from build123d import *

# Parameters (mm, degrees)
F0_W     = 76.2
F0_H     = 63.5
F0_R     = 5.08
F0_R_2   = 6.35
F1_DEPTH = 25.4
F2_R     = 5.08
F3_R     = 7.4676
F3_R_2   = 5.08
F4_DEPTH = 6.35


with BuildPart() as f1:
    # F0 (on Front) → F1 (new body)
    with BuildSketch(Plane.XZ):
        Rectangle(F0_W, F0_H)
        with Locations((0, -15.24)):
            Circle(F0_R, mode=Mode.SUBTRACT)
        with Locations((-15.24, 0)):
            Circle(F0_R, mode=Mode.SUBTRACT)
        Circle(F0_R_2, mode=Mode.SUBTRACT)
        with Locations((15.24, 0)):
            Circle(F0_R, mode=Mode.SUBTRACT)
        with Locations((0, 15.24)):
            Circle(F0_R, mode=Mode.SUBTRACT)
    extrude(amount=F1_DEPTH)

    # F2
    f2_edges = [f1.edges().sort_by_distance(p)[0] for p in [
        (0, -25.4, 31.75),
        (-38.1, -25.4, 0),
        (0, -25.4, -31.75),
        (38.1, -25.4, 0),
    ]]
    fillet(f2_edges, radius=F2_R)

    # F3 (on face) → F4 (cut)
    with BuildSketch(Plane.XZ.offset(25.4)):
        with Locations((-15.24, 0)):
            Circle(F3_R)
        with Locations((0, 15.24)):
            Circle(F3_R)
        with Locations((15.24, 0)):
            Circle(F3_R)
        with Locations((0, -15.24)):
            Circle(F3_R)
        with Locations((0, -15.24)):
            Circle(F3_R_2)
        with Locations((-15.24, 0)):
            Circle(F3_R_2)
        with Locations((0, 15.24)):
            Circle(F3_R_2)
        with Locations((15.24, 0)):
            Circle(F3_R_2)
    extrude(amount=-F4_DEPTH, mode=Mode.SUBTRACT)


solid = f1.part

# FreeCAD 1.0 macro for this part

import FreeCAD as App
import Part
import Sketcher
from FreeCAD import Vector
Q = App.Units.Quantity


def edges_at(feature, points):
    """Names of the edges that pass closest to the given points."""
    edges = feature.Shape.Edges
    near = lambda p: min(range(len(edges)), key=lambda i: edges[i].distToShape(Part.Vertex(*p))[0])
    return sorted({f"Edge{near(p) + 1}" for p in points})

doc = App.newDocument("Part")
body = doc.addObject("PartDesign::Body", "Body")

# Sketch on XZ plane
sketch1 = doc.addObject("Sketcher::SketchObject", "Sketch")
body.addObject(sketch1)
sketch1.AttachmentSupport = (doc.XZ_Plane, [""])
sketch1.MapMode = "FlatFace"
sketch1.addGeometry(Part.LineSegment(Vector(-38, 32, 0), Vector(-38, -32, 0)), False)
sketch1.addGeometry(Part.LineSegment(Vector(-38, -32, 0), Vector(38, -32, 0)), False)
sketch1.addGeometry(Part.LineSegment(Vector(38, -32, 0), Vector(38, 32, 0)), False)
sketch1.addGeometry(Part.LineSegment(Vector(38, 32, 0), Vector(-38, 32, 0)), False)
sketch1.addGeometry(Part.Circle(Vector(0, -15, 0), Vector(0, 0, 1), 5), False)
sketch1.addGeometry(Part.Circle(Vector(-15, 0, 0), Vector(0, 0, 1), 5), False)
sketch1.addGeometry(Part.Circle(Vector(0, 0, 0), Vector(0, 0, 1), 6), False)
sketch1.addGeometry(Part.Circle(Vector(15, 0, 0), Vector(0, 0, 1), 5), False)
sketch1.addGeometry(Part.Circle(Vector(0, 15, 0), Vector(0, 0, 1), 5), False)
sketch1.addConstraint(Sketcher.Constraint("Coincident", 0, 2, 1, 1))
sketch1.addConstraint(Sketcher.Constraint("Coincident", 1, 2, 2, 1))
sketch1.addConstraint(Sketcher.Constraint("Coincident", 2, 2, 3, 1))
sketch1.addConstraint(Sketcher.Constraint("Coincident", 3, 2, 0, 1))
sketch1.addConstraint(Sketcher.Constraint("Vertical", 0))
sketch1.addConstraint(Sketcher.Constraint("Horizontal", 1))
sketch1.addConstraint(Sketcher.Constraint("Vertical", 2))
sketch1.addConstraint(Sketcher.Constraint("Horizontal", 3))
sketch1.addConstraint(Sketcher.Constraint("Coincident", 6, 3, -1, 1))
sketch1.addConstraint(Sketcher.Constraint("Equal", 4, 5))
sketch1.addConstraint(Sketcher.Constraint("Equal", 5, 7))
sketch1.addConstraint(Sketcher.Constraint("Equal", 7, 8))
sketch1.addConstraint(Sketcher.Constraint("Symmetric", 5, 3, 7, 3, -1, 1))
sketch1.addConstraint(Sketcher.Constraint("Symmetric", 4, 3, 8, 3, -1, 1))
sketch1.addConstraint(Sketcher.Constraint("Symmetric", 0, 2, 2, 2, -1, 1))
sketch1.addConstraint(Sketcher.Constraint("PointOnObject", 4, 3, -2))
sketch1.addConstraint(Sketcher.Constraint("PointOnObject", 5, 3, -1))
sketch1.addConstraint(Sketcher.Constraint("Diameter", 4, Q("0.4 in")))
sketch1.addConstraint(Sketcher.Constraint("Diameter", 6, Q("0.5 in")))
sketch1.addConstraint(Sketcher.Constraint("DistanceX", 1, 1, 1, 2, Q("3 in")))
sketch1.addConstraint(Sketcher.Constraint("DistanceY", 0, 2, 0, 1, Q("2.5 in")))
sketch1.addConstraint(Sketcher.Constraint("DistanceY", 4, 3, -1, 1, Q("0.6 in")))
sketch1.addConstraint(Sketcher.Constraint("DistanceX", 5, 3, -1, 1, Q("0.6 in")))
pad1 = doc.addObject("PartDesign::Pad", "Pad")
body.addObject(pad1)
pad1.Profile = sketch1
pad1.Length = Q("1 in")
doc.recompute()

fillet = doc.addObject("PartDesign::Fillet", "Fillet")
body.addObject(fillet)
fillet.Base = (pad1, edges_at(pad1, [
    (0, -25.4, 31.75),
    (-38.1, -25.4, 0),
    (0, -25.4, -31.75),
    (38.1, -25.4, 0),
]))
fillet.Radius = Q("0.2 in")

# Sketch on XZ plane
sketch2 = doc.addObject("Sketcher::SketchObject", "Sketch001")
body.addObject(sketch2)
sketch2.AttachmentSupport = (doc.XZ_Plane, [""])
sketch2.MapMode = "FlatFace"
sketch2.AttachmentOffset = App.Placement(Vector(0, 0, 1 * 25.4), App.Rotation())
sketch2.addGeometry(Part.Circle(Vector(-15, 0, 0), Vector(0, 0, 1), 7), False)
sketch2.addGeometry(Part.Circle(Vector(0, 15, 0), Vector(0, 0, 1), 7), False)
sketch2.addGeometry(Part.Circle(Vector(15, 0, 0), Vector(0, 0, 1), 7), False)
sketch2.addGeometry(Part.Circle(Vector(0, -15, 0), Vector(0, 0, 1), 7), False)
sketch2.addConstraint(Sketcher.Constraint("Equal", 0, 1))
sketch2.addConstraint(Sketcher.Constraint("Equal", 1, 2))
sketch2.addConstraint(Sketcher.Constraint("Equal", 2, 3))
sketch2.addConstraint(Sketcher.Constraint("Symmetric", 0, 3, 2, 3, -1, 1))
sketch2.addConstraint(Sketcher.Constraint("Symmetric", 1, 3, 3, 3, -1, 1))
sketch2.addConstraint(Sketcher.Constraint("PointOnObject", 0, 3, -1))
sketch2.addConstraint(Sketcher.Constraint("PointOnObject", 1, 3, -2))
sketch2.addConstraint(Sketcher.Constraint("Diameter", 0, Q("0.588 in")))
sketch2.addConstraint(Sketcher.Constraint("DistanceX", 0, 3, -1, 1, Q("0.6 in")))
sketch2.addConstraint(Sketcher.Constraint("DistanceY", -1, 1, 1, 3, Q("0.6 in")))
pocket1 = doc.addObject("PartDesign::Pocket", "Pocket")
body.addObject(pocket1)
pocket1.Profile = sketch2
pocket1.Length = Q("0.25 in")

doc.recompute()
